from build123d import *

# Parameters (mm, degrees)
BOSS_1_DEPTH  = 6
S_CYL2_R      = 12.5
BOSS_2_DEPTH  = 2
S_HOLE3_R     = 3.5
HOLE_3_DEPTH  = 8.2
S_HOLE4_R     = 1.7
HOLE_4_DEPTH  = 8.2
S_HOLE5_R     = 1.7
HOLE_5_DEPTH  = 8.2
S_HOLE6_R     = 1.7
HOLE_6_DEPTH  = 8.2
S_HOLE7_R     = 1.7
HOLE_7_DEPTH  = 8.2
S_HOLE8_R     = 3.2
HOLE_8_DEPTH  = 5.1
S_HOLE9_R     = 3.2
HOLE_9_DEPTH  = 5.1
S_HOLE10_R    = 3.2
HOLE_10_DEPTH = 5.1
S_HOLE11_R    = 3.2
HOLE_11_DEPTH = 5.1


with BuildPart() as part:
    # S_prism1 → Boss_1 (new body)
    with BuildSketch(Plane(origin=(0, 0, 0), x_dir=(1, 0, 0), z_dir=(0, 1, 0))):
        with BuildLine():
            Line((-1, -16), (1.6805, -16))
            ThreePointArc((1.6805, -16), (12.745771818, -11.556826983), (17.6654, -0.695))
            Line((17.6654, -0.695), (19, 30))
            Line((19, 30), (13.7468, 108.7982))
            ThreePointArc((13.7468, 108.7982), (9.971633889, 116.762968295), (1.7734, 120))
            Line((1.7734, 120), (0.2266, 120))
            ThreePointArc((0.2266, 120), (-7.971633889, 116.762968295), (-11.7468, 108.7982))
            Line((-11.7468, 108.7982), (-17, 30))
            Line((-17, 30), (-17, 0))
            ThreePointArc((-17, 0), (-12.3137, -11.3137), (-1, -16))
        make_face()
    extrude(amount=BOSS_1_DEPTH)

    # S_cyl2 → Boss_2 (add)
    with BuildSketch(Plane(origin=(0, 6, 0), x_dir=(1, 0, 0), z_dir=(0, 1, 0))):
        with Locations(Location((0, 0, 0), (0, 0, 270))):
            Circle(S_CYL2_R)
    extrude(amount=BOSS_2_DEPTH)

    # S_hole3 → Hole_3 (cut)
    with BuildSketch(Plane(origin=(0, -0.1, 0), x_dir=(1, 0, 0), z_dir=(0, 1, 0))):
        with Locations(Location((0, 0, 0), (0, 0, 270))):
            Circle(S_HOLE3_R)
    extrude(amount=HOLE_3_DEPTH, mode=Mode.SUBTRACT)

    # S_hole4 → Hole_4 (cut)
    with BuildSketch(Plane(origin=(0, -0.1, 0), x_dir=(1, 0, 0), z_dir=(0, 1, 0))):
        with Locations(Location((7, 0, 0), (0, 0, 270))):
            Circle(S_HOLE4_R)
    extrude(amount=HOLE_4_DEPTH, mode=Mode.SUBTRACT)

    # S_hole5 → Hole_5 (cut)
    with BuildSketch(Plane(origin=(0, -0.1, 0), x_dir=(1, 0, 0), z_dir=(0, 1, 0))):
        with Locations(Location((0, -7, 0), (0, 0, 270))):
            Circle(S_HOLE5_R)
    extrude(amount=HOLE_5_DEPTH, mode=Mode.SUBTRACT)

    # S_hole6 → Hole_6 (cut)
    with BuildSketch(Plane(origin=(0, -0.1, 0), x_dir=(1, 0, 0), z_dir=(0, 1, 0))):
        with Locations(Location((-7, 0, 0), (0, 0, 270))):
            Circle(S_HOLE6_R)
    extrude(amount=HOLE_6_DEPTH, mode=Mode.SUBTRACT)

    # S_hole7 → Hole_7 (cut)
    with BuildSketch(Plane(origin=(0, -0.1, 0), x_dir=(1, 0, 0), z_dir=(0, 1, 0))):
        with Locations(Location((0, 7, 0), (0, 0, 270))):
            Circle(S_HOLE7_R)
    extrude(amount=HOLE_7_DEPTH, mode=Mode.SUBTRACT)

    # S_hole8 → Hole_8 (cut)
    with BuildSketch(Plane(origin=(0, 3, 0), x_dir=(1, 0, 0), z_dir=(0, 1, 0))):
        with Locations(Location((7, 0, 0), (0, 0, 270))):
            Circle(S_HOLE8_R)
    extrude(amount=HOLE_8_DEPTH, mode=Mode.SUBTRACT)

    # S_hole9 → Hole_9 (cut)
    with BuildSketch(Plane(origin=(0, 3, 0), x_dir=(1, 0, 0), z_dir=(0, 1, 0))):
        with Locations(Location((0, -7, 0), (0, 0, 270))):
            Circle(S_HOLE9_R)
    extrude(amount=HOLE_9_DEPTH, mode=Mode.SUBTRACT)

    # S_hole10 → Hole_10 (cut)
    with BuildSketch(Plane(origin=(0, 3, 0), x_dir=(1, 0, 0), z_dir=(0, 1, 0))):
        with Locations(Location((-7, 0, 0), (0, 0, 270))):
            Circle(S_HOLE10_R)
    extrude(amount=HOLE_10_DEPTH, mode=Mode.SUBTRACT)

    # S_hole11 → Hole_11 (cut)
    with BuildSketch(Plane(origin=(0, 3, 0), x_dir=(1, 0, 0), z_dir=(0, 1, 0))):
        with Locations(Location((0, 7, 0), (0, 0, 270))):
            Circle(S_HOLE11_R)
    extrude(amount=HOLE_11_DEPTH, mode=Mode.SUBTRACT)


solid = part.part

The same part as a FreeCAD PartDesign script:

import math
import FreeCAD as App
import Part
import Sketcher
from FreeCAD import Vector

doc = App.newDocument("Part")
body = doc.addObject("PartDesign::Body", "Body")

# Sketch on XZ plane
sketch1 = body.newObject("Sketcher::SketchObject", "Sketch")
sketch1.AttachmentSupport = (doc.getObject("XZ_Plane"), [""])
sketch1.MapMode = "FlatFace"
sketch1.addGeometry([
    Part.LineSegment(Vector(-1, 16, 0), Vector(1.6805, 16, 0)),  # 0
    Part.ArcOfCircle(Part.Circle(Vector(1.680537, 0.000037, 0), Vector(0, 0, 1), 15.999963), math.radians(2.489442), math.radians(90.000132)),  # 1
    Part.LineSegment(Vector(17.6654, 0.695, 0), Vector(19, -30, 0)),  # 2
    Part.LineSegment(Vector(19, -30, 0), Vector(13.7468, -108.7982, 0)),  # 3
    Part.ArcOfCircle(Part.Circle(Vector(1.773486, -108.000118, 0), Vector(0, 0, 1), 11.999882), math.radians(-90.000412), math.radians(-3.813415)),  # 4
    Part.LineSegment(Vector(1.7734, -120, 0), Vector(0.2266, -120, 0)),  # 5
    Part.ArcOfCircle(Part.Circle(Vector(0.226514, -108.000118, 0), Vector(0, 0, 1), 11.999882), math.radians(-176.186585), math.radians(-89.999588)),  # 6
    Part.LineSegment(Vector(-11.7468, -108.7982, 0), Vector(-17, -30, 0)),  # 7
    Part.LineSegment(Vector(-17, -30, 0), Vector(-17, 0, 0)),  # 8
    Part.ArcOfCircle(Part.Circle(Vector(-0.999971, -0.000029, 0), Vector(0, 0, 1), 16.000029), math.radians(90.000104), math.radians(179.999896)),  # 9
], False)
sketch1.addConstraint([
    Sketcher.Constraint("Coincident", 0, 2, 1, 2),
    Sketcher.Constraint("Coincident", 1, 1, 2, 1),
    Sketcher.Constraint("Coincident", 2, 2, 3, 1),
    Sketcher.Constraint("Coincident", 3, 2, 4, 2),
    Sketcher.Constraint("Coincident", 4, 1, 5, 1),
    Sketcher.Constraint("Coincident", 5, 2, 6, 2),
    Sketcher.Constraint("Coincident", 6, 1, 7, 1),
    Sketcher.Constraint("Coincident", 7, 2, 8, 1),
    Sketcher.Constraint("Coincident", 8, 2, 9, 2),
    Sketcher.Constraint("Coincident", 9, 1, 0, 1),
    Sketcher.Constraint("Horizontal", 0),
    Sketcher.Constraint("Horizontal", 5),
    Sketcher.Constraint("Vertical", 8),
    Sketcher.Constraint("PointOnObject", 8, 2, -1),
    Sketcher.Constraint("DistanceY", 8, 1, 8, 2, 30.0),
    Sketcher.Constraint("DistanceY", -1, 1, 0, 2, 16.0),
    Sketcher.Constraint("DistanceX", -1, 1, 2, 2, 19.0),
    Sketcher.Constraint("DistanceY", 2, 2, -1, 1, 30.0),
    Sketcher.Constraint("DistanceY", 4, 1, -1, 1, 120.0),
    Sketcher.Constraint("DistanceX", 7, 2, -1, 1, 17.0),
    Sketcher.Constraint("DistanceX", 9, 1, -1, 1, 1.0),
    Sketcher.Constraint("Radius", 9, 16.000029),
    Sketcher.Constraint("Distance", 2, 30.724),
    Sketcher.Constraint("DistanceX", 0, 1, 0, 2, 2.6805),
    Sketcher.Constraint("DistanceX", 5, 2, 5, 1, 1.5468),
    Sketcher.Constraint("DistanceY", -1, 1, 1, 1, 0.695),
    Sketcher.Constraint("Radius", 1, 15.999963),
    Sketcher.Constraint("Radius", 4, 11.999882),
    Sketcher.Constraint("Radius", 6, 11.999882),
    Sketcher.Constraint("DistanceX", -1, 1, 3, 2, 13.7468),
    Sketcher.Constraint("DistanceY", 3, 2, -1, 1, 108.7982),
    Sketcher.Constraint("DistanceX", -1, 1, 4, 1, 1.7734),
    Sketcher.Constraint("DistanceX", 6, 1, -1, 1, 11.7468),
    Sketcher.Constraint("DistanceY", 6, 1, -1, 1, 108.7982),
])
pad1 = body.newObject("PartDesign::Pad", "Pad")
pad1.Profile = sketch1
pad1.Length = 6
pad1.Reversed = True

# Sketch on XZ plane
sketch2 = body.newObject("Sketcher::SketchObject", "Sketch001")
sketch2.AttachmentSupport = (doc.getObject("XZ_Plane"), [""])
sketch2.MapMode = "FlatFace"
sketch2.AttachmentOffset = App.Placement(Vector(0, 0, -6), App.Rotation())
sketch2.addGeometry(Part.Circle(Vector(0, 0, 0), Vector(0, 0, 1), 12.5), False)
sketch2.addConstraint([
    Sketcher.Constraint("Coincident", 0, 3, -1, 1),
    Sketcher.Constraint("Diameter", 0, 25.0),
])
pad2 = body.newObject("PartDesign::Pad", "Pad001")
pad2.Profile = sketch2
pad2.Length = 2
pad2.Reversed = True

# Sketch on XZ plane
sketch3 = body.newObject("Sketcher::SketchObject", "Sketch002")
sketch3.AttachmentSupport = (doc.getObject("XZ_Plane"), [""])
sketch3.MapMode = "FlatFace"
sketch3.AttachmentOffset = App.Placement(Vector(0, 0, 0.1), App.Rotation())
sketch3.addGeometry(Part.Circle(Vector(0, 0, 0), Vector(0, 0, 1), 3.5), False)
sketch3.addConstraint([
    Sketcher.Constraint("Coincident", 0, 3, -1, 1),
    Sketcher.Constraint("Diameter", 0, 7.0),
])
pocket1 = body.newObject("PartDesign::Pocket", "Pocket")
pocket1.Profile = sketch3
pocket1.Length = 8.2

# Sketch on XZ plane
sketch4 = body.newObject("Sketcher::SketchObject", "Sketch003")
sketch4.AttachmentSupport = (doc.getObject("XZ_Plane"), [""])
sketch4.MapMode = "FlatFace"
sketch4.AttachmentOffset = App.Placement(Vector(0, 0, 0.1), App.Rotation())
sketch4.addGeometry(Part.Circle(Vector(7, 0, 0), Vector(0, 0, 1), 1.7), False)
sketch4.addConstraint([
    Sketcher.Constraint("PointOnObject", 0, 3, -1),
    Sketcher.Constraint("Diameter", 0, 3.4),
    Sketcher.Constraint("DistanceX", -1, 1, 0, 3, 7.0),
])
pocket2 = body.newObject("PartDesign::Pocket", "Pocket001")
pocket2.Profile = sketch4
pocket2.Length = 8.2

# Sketch on XZ plane
sketch5 = body.newObject("Sketcher::SketchObject", "Sketch004")
sketch5.AttachmentSupport = (doc.getObject("XZ_Plane"), [""])
sketch5.MapMode = "FlatFace"
sketch5.AttachmentOffset = App.Placement(Vector(0, 0, 0.1), App.Rotation())
sketch5.addGeometry(Part.Circle(Vector(0, 7, 0), Vector(0, 0, 1), 1.7), False)
sketch5.addConstraint([
    Sketcher.Constraint("PointOnObject", 0, 3, -2),
    Sketcher.Constraint("Diameter", 0, 3.4),
    Sketcher.Constraint("DistanceY", -1, 1, 0, 3, 7.0),
])
pocket3 = body.newObject("PartDesign::Pocket", "Pocket002")
pocket3.Profile = sketch5
pocket3.Length = 8.2

# Sketch on XZ plane
sketch6 = body.newObject("Sketcher::SketchObject", "Sketch005")
sketch6.AttachmentSupport = (doc.getObject("XZ_Plane"), [""])
sketch6.MapMode = "FlatFace"
sketch6.AttachmentOffset = App.Placement(Vector(0, 0, 0.1), App.Rotation())
sketch6.addGeometry(Part.Circle(Vector(-7, 0, 0), Vector(0, 0, 1), 1.7), False)
sketch6.addConstraint([
    Sketcher.Constraint("PointOnObject", 0, 3, -1),
    Sketcher.Constraint("Diameter", 0, 3.4),
    Sketcher.Constraint("DistanceX", 0, 3, -1, 1, 7.0),
])
pocket4 = body.newObject("PartDesign::Pocket", "Pocket003")
pocket4.Profile = sketch6
pocket4.Length = 8.2

# Sketch on XZ plane
sketch7 = body.newObject("Sketcher::SketchObject", "Sketch006")
sketch7.AttachmentSupport = (doc.getObject("XZ_Plane"), [""])
sketch7.MapMode = "FlatFace"
sketch7.AttachmentOffset = App.Placement(Vector(0, 0, 0.1), App.Rotation())
sketch7.addGeometry(Part.Circle(Vector(0, -7, 0), Vector(0, 0, 1), 1.7), False)
sketch7.addConstraint([
    Sketcher.Constraint("PointOnObject", 0, 3, -2),
    Sketcher.Constraint("Diameter", 0, 3.4),
    Sketcher.Constraint("DistanceY", 0, 3, -1, 1, 7.0),
])
pocket5 = body.newObject("PartDesign::Pocket", "Pocket004")
pocket5.Profile = sketch7
pocket5.Length = 8.2

# Sketch on XZ plane
sketch8 = body.newObject("Sketcher::SketchObject", "Sketch007")
sketch8.AttachmentSupport = (doc.getObject("XZ_Plane"), [""])
sketch8.MapMode = "FlatFace"
sketch8.AttachmentOffset = App.Placement(Vector(0, 0, -3), App.Rotation())
sketch8.addGeometry(Part.Circle(Vector(7, 0, 0), Vector(0, 0, 1), 3.2), False)
sketch8.addConstraint([
    Sketcher.Constraint("PointOnObject", 0, 3, -1),
    Sketcher.Constraint("Diameter", 0, 6.4),
    Sketcher.Constraint("DistanceX", -1, 1, 0, 3, 7.0),
])
pocket6 = body.newObject("PartDesign::Pocket", "Pocket005")
pocket6.Profile = sketch8
pocket6.Length = 5.1

# Sketch on XZ plane
sketch9 = body.newObject("Sketcher::SketchObject", "Sketch008")
sketch9.AttachmentSupport = (doc.getObject("XZ_Plane"), [""])
sketch9.MapMode = "FlatFace"
sketch9.AttachmentOffset = App.Placement(Vector(0, 0, -3), App.Rotation())
sketch9.addGeometry(Part.Circle(Vector(0, 7, 0), Vector(0, 0, 1), 3.2), False)
sketch9.addConstraint([
    Sketcher.Constraint("PointOnObject", 0, 3, -2),
    Sketcher.Constraint("Diameter", 0, 6.4),
    Sketcher.Constraint("DistanceY", -1, 1, 0, 3, 7.0),
])
pocket7 = body.newObject("PartDesign::Pocket", "Pocket006")
pocket7.Profile = sketch9
pocket7.Length = 5.1

# Sketch on XZ plane
sketch10 = body.newObject("Sketcher::SketchObject", "Sketch009")
sketch10.AttachmentSupport = (doc.getObject("XZ_Plane"), [""])
sketch10.MapMode = "FlatFace"
sketch10.AttachmentOffset = App.Placement(Vector(0, 0, -3), App.Rotation())
sketch10.addGeometry(Part.Circle(Vector(-7, 0, 0), Vector(0, 0, 1), 3.2), False)
sketch10.addConstraint([
    Sketcher.Constraint("PointOnObject", 0, 3, -1),
    Sketcher.Constraint("Diameter", 0, 6.4),
    Sketcher.Constraint("DistanceX", 0, 3, -1, 1, 7.0),
])
pocket8 = body.newObject("PartDesign::Pocket", "Pocket007")
pocket8.Profile = sketch10
pocket8.Length = 5.1

# Sketch on XZ plane
sketch11 = body.newObject("Sketcher::SketchObject", "Sketch010")
sketch11.AttachmentSupport = (doc.getObject("XZ_Plane"), [""])
sketch11.MapMode = "FlatFace"
sketch11.AttachmentOffset = App.Placement(Vector(0, 0, -3), App.Rotation())
sketch11.addGeometry(Part.Circle(Vector(0, -7, 0), Vector(0, 0, 1), 3.2), False)
sketch11.addConstraint([
    Sketcher.Constraint("PointOnObject", 0, 3, -2),
    Sketcher.Constraint("Diameter", 0, 6.4),
    Sketcher.Constraint("DistanceY", 0, 3, -1, 1, 7.0),
])
pocket9 = body.newObject("PartDesign::Pocket", "Pocket008")
pocket9.Profile = sketch11
pocket9.Length = 5.1

doc.recompute()
